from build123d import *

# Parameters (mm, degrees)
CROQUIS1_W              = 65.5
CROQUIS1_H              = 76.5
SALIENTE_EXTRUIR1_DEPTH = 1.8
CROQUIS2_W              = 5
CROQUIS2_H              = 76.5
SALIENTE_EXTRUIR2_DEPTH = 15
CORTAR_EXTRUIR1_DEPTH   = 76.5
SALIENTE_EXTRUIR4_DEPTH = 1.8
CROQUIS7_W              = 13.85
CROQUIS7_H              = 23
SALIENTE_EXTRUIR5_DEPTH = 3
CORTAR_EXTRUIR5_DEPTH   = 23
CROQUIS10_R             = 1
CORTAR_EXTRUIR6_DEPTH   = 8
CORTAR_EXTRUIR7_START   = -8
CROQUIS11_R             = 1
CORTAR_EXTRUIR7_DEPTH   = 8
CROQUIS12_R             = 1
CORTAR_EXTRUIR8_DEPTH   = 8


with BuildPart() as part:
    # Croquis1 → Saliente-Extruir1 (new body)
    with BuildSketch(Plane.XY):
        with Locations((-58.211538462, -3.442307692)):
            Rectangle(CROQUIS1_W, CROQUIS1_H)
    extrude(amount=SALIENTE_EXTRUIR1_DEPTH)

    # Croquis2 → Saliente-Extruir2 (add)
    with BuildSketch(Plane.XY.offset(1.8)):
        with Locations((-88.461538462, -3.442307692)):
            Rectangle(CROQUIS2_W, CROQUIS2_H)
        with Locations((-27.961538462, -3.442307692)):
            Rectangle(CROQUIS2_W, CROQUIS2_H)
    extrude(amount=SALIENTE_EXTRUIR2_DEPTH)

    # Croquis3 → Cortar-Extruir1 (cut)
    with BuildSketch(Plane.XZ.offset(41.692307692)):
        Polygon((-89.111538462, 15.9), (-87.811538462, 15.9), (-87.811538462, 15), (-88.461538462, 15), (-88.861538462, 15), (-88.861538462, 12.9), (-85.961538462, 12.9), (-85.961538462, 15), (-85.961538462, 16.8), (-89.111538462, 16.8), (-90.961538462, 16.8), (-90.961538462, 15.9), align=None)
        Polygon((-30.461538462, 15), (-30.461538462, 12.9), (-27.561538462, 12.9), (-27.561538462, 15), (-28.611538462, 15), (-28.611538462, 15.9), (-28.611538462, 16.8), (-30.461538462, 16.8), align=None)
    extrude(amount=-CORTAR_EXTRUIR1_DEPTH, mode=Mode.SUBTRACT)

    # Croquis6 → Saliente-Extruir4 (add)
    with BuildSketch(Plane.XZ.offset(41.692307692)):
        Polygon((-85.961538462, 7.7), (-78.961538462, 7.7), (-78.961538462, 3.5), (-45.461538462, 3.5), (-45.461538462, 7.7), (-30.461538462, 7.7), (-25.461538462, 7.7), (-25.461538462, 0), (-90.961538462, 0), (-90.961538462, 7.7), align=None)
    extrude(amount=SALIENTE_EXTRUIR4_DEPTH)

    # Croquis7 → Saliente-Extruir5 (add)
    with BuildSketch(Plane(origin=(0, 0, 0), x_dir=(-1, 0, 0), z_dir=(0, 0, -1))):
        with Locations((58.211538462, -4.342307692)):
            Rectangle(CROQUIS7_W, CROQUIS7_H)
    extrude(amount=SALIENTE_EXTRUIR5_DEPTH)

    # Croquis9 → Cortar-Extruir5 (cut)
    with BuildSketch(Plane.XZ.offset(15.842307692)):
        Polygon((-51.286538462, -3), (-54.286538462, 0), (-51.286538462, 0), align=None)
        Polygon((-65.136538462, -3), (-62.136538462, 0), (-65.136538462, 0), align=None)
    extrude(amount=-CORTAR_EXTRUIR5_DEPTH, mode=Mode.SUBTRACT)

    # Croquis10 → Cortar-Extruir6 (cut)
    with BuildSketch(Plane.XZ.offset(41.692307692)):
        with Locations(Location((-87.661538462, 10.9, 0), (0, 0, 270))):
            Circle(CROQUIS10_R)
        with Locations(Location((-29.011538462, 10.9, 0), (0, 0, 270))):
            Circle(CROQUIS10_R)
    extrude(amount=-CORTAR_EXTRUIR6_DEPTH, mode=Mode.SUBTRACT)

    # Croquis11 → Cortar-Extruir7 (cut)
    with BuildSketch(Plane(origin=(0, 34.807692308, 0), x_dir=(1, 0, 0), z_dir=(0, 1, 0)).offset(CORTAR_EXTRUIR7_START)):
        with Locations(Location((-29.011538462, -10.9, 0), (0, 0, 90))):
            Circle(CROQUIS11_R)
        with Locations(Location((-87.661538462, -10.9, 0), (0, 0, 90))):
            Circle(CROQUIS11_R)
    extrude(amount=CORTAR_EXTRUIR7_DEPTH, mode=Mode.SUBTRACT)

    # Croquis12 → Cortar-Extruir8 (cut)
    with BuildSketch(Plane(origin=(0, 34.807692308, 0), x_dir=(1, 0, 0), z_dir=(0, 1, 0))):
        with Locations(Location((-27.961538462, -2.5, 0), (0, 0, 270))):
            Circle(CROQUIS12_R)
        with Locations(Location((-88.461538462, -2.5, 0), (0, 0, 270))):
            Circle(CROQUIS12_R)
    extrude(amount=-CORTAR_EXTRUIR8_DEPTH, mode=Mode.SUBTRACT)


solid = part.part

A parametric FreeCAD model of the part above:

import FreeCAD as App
import Part
import Sketcher

doc = App.newDocument("Part")
body = doc.addObject("PartDesign::Body", "Body")

# Sketch on XY plane
sketch1 = body.newObject("Sketcher::SketchObject", "Sketch")
sketch1.AttachmentSupport = (doc.getObject("XY_Plane"), [""])
sketch1.MapMode = "FlatFace"
sketch1.addGeometry([
    Part.LineSegment(App.Vector(-91, 35, 0), App.Vector(-91, -42, 0)),
    Part.LineSegment(App.Vector(-91, -42, 0), App.Vector(-25, -42, 0)),
    Part.LineSegment(App.Vector(-25, -42, 0), App.Vector(-25, 35, 0)),
    Part.LineSegment(App.Vector(-25, 35, 0), App.Vector(-91, 35, 0)),
], False)
sketch1.addConstraint([
    Sketcher.Constraint("Coincident", 0, 2, 1, 1),
    Sketcher.Constraint("Coincident", 1, 2, 2, 1),
    Sketcher.Constraint("Coincident", 2, 2, 3, 1),
    Sketcher.Constraint("Coincident", 3, 2, 0, 1),
    Sketcher.Constraint("Vertical", 0),
    Sketcher.Constraint("Horizontal", 1),
    Sketcher.Constraint("Vertical", 2),
    Sketcher.Constraint("Horizontal", 3),
    Sketcher.Constraint("DistanceX", 1, 1, 1, 2, 65.5),
    Sketcher.Constraint("DistanceY", 0, 2, 0, 1, 76.5),
    Sketcher.Constraint("DistanceX", 0, 2, -1, 1, 90.961538),
    Sketcher.Constraint("DistanceY", 0, 2, -1, 1, 41.692308),
])
pad1 = body.newObject("PartDesign::Pad", "Pad")
pad1.Profile = sketch1
pad1.Length = 1.8

# Sketch on XY plane
sketch2 = body.newObject("Sketcher::SketchObject", "Sketch001")
sketch2.AttachmentSupport = (doc.getObject("XY_Plane"), [""])
sketch2.MapMode = "FlatFace"
sketch2.AttachmentOffset = App.Placement(App.Vector(0, 0, 1.8), App.Rotation())
sketch2.addGeometry([
    Part.LineSegment(App.Vector(-91, 35, 0), App.Vector(-91, -42, 0)),  # 0
    Part.LineSegment(App.Vector(-91, -42, 0), App.Vector(-86, -42, 0)),  # 1
    Part.LineSegment(App.Vector(-86, -42, 0), App.Vector(-86, 35, 0)),  # 2
    Part.LineSegment(App.Vector(-86, 35, 0), App.Vector(-91, 35, 0)),  # 3
    Part.LineSegment(App.Vector(-30, 35, 0), App.Vector(-30, -42, 0)),  # 4
    Part.LineSegment(App.Vector(-30, -42, 0), App.Vector(-25, -42, 0)),  # 5
    Part.LineSegment(App.Vector(-25, -42, 0), App.Vector(-25, 35, 0)),  # 6
    Part.LineSegment(App.Vector(-25, 35, 0), App.Vector(-30, 35, 0)),  # 7
], False)
sketch2.addConstraint([
    Sketcher.Constraint("Coincident", 0, 2, 1, 1),
    Sketcher.Constraint("Coincident", 1, 2, 2, 1),
    Sketcher.Constraint("Coincident", 2, 2, 3, 1),
    Sketcher.Constraint("Coincident", 3, 2, 0, 1),
    Sketcher.Constraint("Coincident", 4, 2, 5, 1),
    Sketcher.Constraint("Coincident", 5, 2, 6, 1),
    Sketcher.Constraint("Coincident", 6, 2, 7, 1),
    Sketcher.Constraint("Coincident", 7, 2, 4, 1),
    Sketcher.Constraint("Vertical", 0),
    Sketcher.Constraint("Horizontal", 1),
    Sketcher.Constraint("Vertical", 2),
    Sketcher.Constraint("Horizontal", 3),
    Sketcher.Constraint("Vertical", 4),
    Sketcher.Constraint("Horizontal", 5),
    Sketcher.Constraint("Vertical", 6),
    Sketcher.Constraint("Horizontal", 7),
    Sketcher.Constraint("Horizontal", 1, 2, 4, 2),
    Sketcher.Constraint("Horizontal", 3, 2, 6, 2),
    Sketcher.Constraint("Equal", 3, 5),
    Sketcher.Constraint("DistanceX", 1, 1, 1, 2, 5.0),
    Sketcher.Constraint("DistanceY", 0, 2, 0, 1, 76.5),
    Sketcher.Constraint("DistanceX", 1, 2, 4, 2, 55.5),
    Sketcher.Constraint("DistanceX", 0, 2, -1, 1, 90.961538),
    Sketcher.Constraint("DistanceY", 0, 2, -1, 1, 41.692308),
])
pad2 = body.newObject("PartDesign::Pad", "Pad001")
pad2.Profile = sketch2
pad2.Length = 15

# Sketch on XZ plane
sketch3 = body.newObject("Sketcher::SketchObject", "Sketch002")
sketch3.AttachmentSupport = (doc.getObject("XZ_Plane"), [""])
sketch3.MapMode = "FlatFace"
sketch3.AttachmentOffset = App.Placement(App.Vector(0, 0, 41.692308), App.Rotation())
sketch3.addGeometry([
    Part.LineSegment(App.Vector(-87.8, 15.9, 0), App.Vector(-87.8, 15, 0)),  # 0
    Part.LineSegment(App.Vector(-87.8, 15, 0), App.Vector(-88.9, 15, 0)),  # 1
    Part.LineSegment(App.Vector(-88.9, 15, 0), App.Vector(-88.9, 12.9, 0)),  # 2
    Part.LineSegment(App.Vector(-88.9, 12.9, 0), App.Vector(-86, 12.9, 0)),  # 3
    Part.LineSegment(App.Vector(-86, 12.9, 0), App.Vector(-86, 16.8, 0)),  # 4
    Part.LineSegment(App.Vector(-86, 16.8, 0), App.Vector(-91, 16.8, 0)),  # 5
    Part.LineSegment(App.Vector(-91, 16.8, 0), App.Vector(-91, 15.9, 0)),  # 6
    Part.LineSegment(App.Vector(-91, 15.9, 0), App.Vector(-87.8, 15.9, 0)),  # 7
    Part.LineSegment(App.Vector(-30.5, 12.9, 0), App.Vector(-27.6, 12.9, 0)),  # 8
    Part.LineSegment(App.Vector(-27.6, 12.9, 0), App.Vector(-27.6, 15, 0)),  # 9
    Part.LineSegment(App.Vector(-27.6, 15, 0), App.Vector(-28.6, 15, 0)),  # 10
    Part.LineSegment(App.Vector(-28.6, 15, 0), App.Vector(-28.6, 16.8, 0)),  # 11
    Part.LineSegment(App.Vector(-28.6, 16.8, 0), App.Vector(-30.5, 16.8, 0)),  # 12
    Part.LineSegment(App.Vector(-30.5, 16.8, 0), App.Vector(-30.5, 12.9, 0)),  # 13
], False)
sketch3.addConstraint([
    Sketcher.Constraint("Coincident", 0, 2, 1, 1),
    Sketcher.Constraint("Coincident", 1, 2, 2, 1),
    Sketcher.Constraint("Coincident", 2, 2, 3, 1),
    Sketcher.Constraint("Coincident", 3, 2, 4, 1),
    Sketcher.Constraint("Coincident", 4, 2, 5, 1),
    Sketcher.Constraint("Coincident", 5, 2, 6, 1),
    Sketcher.Constraint("Coincident", 6, 2, 7, 1),
    Sketcher.Constraint("Coincident", 7, 2, 0, 1),
    Sketcher.Constraint("Coincident", 8, 2, 9, 1),
    Sketcher.Constraint("Coincident", 9, 2, 10, 1),
    Sketcher.Constraint("Coincident", 10, 2, 11, 1),
    Sketcher.Constraint("Coincident", 11, 2, 12, 1),
    Sketcher.Constraint("Coincident", 12, 2, 13, 1),
    Sketcher.Constraint("Coincident", 13, 2, 8, 1),
    Sketcher.Constraint("Vertical", 0),
    Sketcher.Constraint("Horizontal", 1),
    Sketcher.Constraint("Vertical", 2),
    Sketcher.Constraint("Horizontal", 3),
    Sketcher.Constraint("Vertical", 4),
    Sketcher.Constraint("Horizontal", 5),
    Sketcher.Constraint("Vertical", 6),
    Sketcher.Constraint("Horizontal", 7),
    Sketcher.Constraint("Horizontal", 8),
    Sketcher.Constraint("Vertical", 9),
    Sketcher.Constraint("Horizontal", 10),
    Sketcher.Constraint("Vertical", 11),
    Sketcher.Constraint("Horizontal", 12),
    Sketcher.Constraint("Vertical", 13),
    Sketcher.Constraint("Horizontal", 3, 2, 8, 2),
    Sketcher.Constraint("Horizontal", 1, 2, 9, 2),
    Sketcher.Constraint("Horizontal", 5, 2, 11, 2),
    Sketcher.Constraint("Equal", 3, 8),
    Sketcher.Constraint("Equal", 1, 10),
    Sketcher.Constraint("Equal", 0, 6),
    Sketcher.Constraint("DistanceX", 5, 2, 5, 1, 5.0),
    Sketcher.Constraint("DistanceX", 3, 1, 3, 2, 2.9),
    Sketcher.Constraint("DistanceY", 0, 2, 0, 1, 0.9),
    Sketcher.Constraint("DistanceY", 2, 2, 2, 1, 2.1),
    Sketcher.Constraint("DistanceY", -1, 1, 0, 2, 15.0),
    Sketcher.Constraint("DistanceX", 1, 2, 1, 1, 1.05),
    Sketcher.Constraint("DistanceX", 3, 2, 8, 2, 58.4),
    Sketcher.Constraint("DistanceX", 0, 2, -1, 1, 87.811538),
])
pocket1 = body.newObject("PartDesign::Pocket", "Pocket")
pocket1.Profile = sketch3
pocket1.Length = 76.5

# Sketch on XZ plane
sketch4 = body.newObject("Sketcher::SketchObject", "Sketch003")
sketch4.AttachmentSupport = (doc.getObject("XZ_Plane"), [""])
sketch4.MapMode = "FlatFace"
sketch4.AttachmentOffset = App.Placement(App.Vector(0, 0, 41.692308), App.Rotation())
sketch4.addGeometry([
    Part.LineSegment(App.Vector(-79, 7.7, 0), App.Vector(-91, 7.7, 0)),  # 0
    Part.LineSegment(App.Vector(-91, 7.7, 0), App.Vector(-91, 0, 0)),  # 1
    Part.LineSegment(App.Vector(-91, 0, 0), App.Vector(-25.5, 0, 0)),  # 2
    Part.LineSegment(App.Vector(-25.5, 0, 0), App.Vector(-25.5, 7.7, 0)),  # 3
    Part.LineSegment(App.Vector(-25.5, 7.7, 0), App.Vector(-45.5, 7.7, 0)),  # 4
    Part.LineSegment(App.Vector(-45.5, 7.7, 0), App.Vector(-45.5, 3.5, 0)),  # 5
    Part.LineSegment(App.Vector(-45.5, 3.5, 0), App.Vector(-79, 3.5, 0)),  # 6
    Part.LineSegment(App.Vector(-79, 3.5, 0), App.Vector(-79, 7.7, 0)),  # 7
], False)
sketch4.addConstraint([
    Sketcher.Constraint("Coincident", 0, 2, 1, 1),
    Sketcher.Constraint("Coincident", 1, 2, 2, 1),
    Sketcher.Constraint("Coincident", 2, 2, 3, 1),
    Sketcher.Constraint("Coincident", 3, 2, 4, 1),
    Sketcher.Constraint("Coincident", 4, 2, 5, 1),
    Sketcher.Constraint("Coincident", 5, 2, 6, 1),
    Sketcher.Constraint("Coincident", 6, 2, 7, 1),
    Sketcher.Constraint("Coincident", 7, 2, 0, 1),
    Sketcher.Constraint("Horizontal", 0),
    Sketcher.Constraint("Vertical", 1),
    Sketcher.Constraint("Horizontal", 2),
    Sketcher.Constraint("Vertical", 3),
    Sketcher.Constraint("Horizontal", 4),
    Sketcher.Constraint("Vertical", 5),
    Sketcher.Constraint("Horizontal", 6),
    Sketcher.Constraint("Vertical", 7),
    Sketcher.Constraint("PointOnObject", 1, 2, -1),
    Sketcher.Constraint("Horizontal", 0, 2, 3, 2),
    Sketcher.Constraint("DistanceX", 0, 2, 0, 1, 12.0),
    Sketcher.Constraint("DistanceX", 4, 2, 4, 1, 20.0),
    Sketcher.Constraint("DistanceX", 2, 1, 2, 2, 65.5),
    Sketcher.Constraint("DistanceY", 1, 2, 1, 1, 7.7),
    Sketcher.Constraint("DistanceY", 5, 2, 5, 1, 4.2),
    Sketcher.Constraint("DistanceX", 0, 2, -1, 1, 90.961538),
])
pad3 = body.newObject("PartDesign::Pad", "Pad002")
pad3.Profile = sketch4
pad3.Length = 1.8

# Sketch on XY plane
sketch5 = body.newObject("Sketcher::SketchObject", "Sketch004")
sketch5.AttachmentSupport = (doc.getObject("XY_Plane"), [""])
sketch5.MapMode = "FlatFace"
sketch5.addGeometry([
    Part.LineSegment(App.Vector(-51, 7, 0), App.Vector(-51, -16, 0)),
    Part.LineSegment(App.Vector(-51, -16, 0), App.Vector(-65, -16, 0)),
    Part.LineSegment(App.Vector(-65, -16, 0), App.Vector(-65, 7, 0)),
    Part.LineSegment(App.Vector(-65, 7, 0), App.Vector(-51, 7, 0)),
], False)
sketch5.addConstraint([
    Sketcher.Constraint("Coincident", 0, 2, 1, 1),
    Sketcher.Constraint("Coincident", 1, 2, 2, 1),
    Sketcher.Constraint("Coincident", 2, 2, 3, 1),
    Sketcher.Constraint("Coincident", 3, 2, 0, 1),
    Sketcher.Constraint("Vertical", 0),
    Sketcher.Constraint("Horizontal", 1),
    Sketcher.Constraint("Vertical", 2),
    Sketcher.Constraint("Horizontal", 3),
    Sketcher.Constraint("DistanceY", 0, 2, 0, 1, 23.0),
    Sketcher.Constraint("DistanceX", 1, 2, 1, 1, 13.85),
    Sketcher.Constraint("DistanceX", 0, 2, -1, 1, 51.286538),
    Sketcher.Constraint("DistanceY", 0, 2, -1, 1, 15.842308),
])
pad4 = body.newObject("PartDesign::Pad", "Pad003")
pad4.Profile = sketch5
pad4.Length = 3
pad4.Reversed = True

# Sketch on XZ plane
sketch6 = body.newObject("Sketcher::SketchObject", "Sketch005")
sketch6.AttachmentSupport = (doc.getObject("XZ_Plane"), [""])
sketch6.MapMode = "FlatFace"
sketch6.AttachmentOffset = App.Placement(App.Vector(0, 0, 15.842308), App.Rotation())
sketch6.addGeometry([
    Part.LineSegment(App.Vector(-54.3, 0, 0), App.Vector(-51.3, -3, 0)),  # 0
    Part.LineSegment(App.Vector(-51.3, -3, 0), App.Vector(-51.3, 0, 0)),  # 1
    Part.LineSegment(App.Vector(-51.3, 0, 0), App.Vector(-54.3, 0, 0)),  # 2
    Part.LineSegment(App.Vector(-65.1, -3, 0), App.Vector(-62.1, 0, 0)),  # 3
    Part.LineSegment(App.Vector(-62.1, 0, 0), App.Vector(-65.1, 0, 0)),  # 4
    Part.LineSegment(App.Vector(-65.1, 0, 0), App.Vector(-65.1, -3, 0)),  # 5
], False)
sketch6.addConstraint([
    Sketcher.Constraint("Coincident", 0, 2, 1, 1),
    Sketcher.Constraint("Coincident", 1, 2, 2, 1),
    Sketcher.Constraint("Coincident", 2, 2, 0, 1),
    Sketcher.Constraint("Coincident", 3, 2, 4, 1),
    Sketcher.Constraint("Coincident", 4, 2, 5, 1),
    Sketcher.Constraint("Coincident", 5, 2, 3, 1),
    Sketcher.Constraint("Vertical", 1),
    Sketcher.Constraint("Horizontal", 2),
    Sketcher.Constraint("Horizontal", 4),
    Sketcher.Constraint("Vertical", 5),
    Sketcher.Constraint("PointOnObject", 1, 2, -1),
    Sketcher.Constraint("PointOnObject", 3, 2, -1),
    Sketcher.Constraint("Perpendicular", 0, 3),
    Sketcher.Constraint("Horizontal", 0, 2, 5, 2),
    Sketcher.Constraint("Equal", 2, 4),
    Sketcher.Constraint("DistanceX", 2, 2, 2, 1, 3.0),
    Sketcher.Constraint("DistanceX", 3, 2, 2, 2, 7.85),
    Sketcher.Constraint("DistanceX", 0, 2, -1, 1, 51.286538),
])
pocket2 = body.newObject("PartDesign::Pocket", "Pocket001")
pocket2.Profile = sketch6
pocket2.Length = 23

# Sketch on XZ plane
sketch7 = body.newObject("Sketcher::SketchObject", "Sketch006")
sketch7.AttachmentSupport = (doc.getObject("XZ_Plane"), [""])
sketch7.MapMode = "FlatFace"
sketch7.AttachmentOffset = App.Placement(App.Vector(0, 0, 41.692308), App.Rotation())
sketch7.addGeometry([
    Part.Circle(App.Vector(-87.7, 10.9, 0), App.Vector(0, 0, 1), 1),
    Part.Circle(App.Vector(-29, 10.9, 0), App.Vector(0, 0, 1), 1),
], False)
sketch7.addConstraint([
    Sketcher.Constraint("Equal", 0, 1),
    Sketcher.Constraint("Horizontal", 0, 3, 1, 3),
    Sketcher.Constraint("Diameter", 0, 2.0),
    Sketcher.Constraint("DistanceY", -1, 1, 0, 3, 10.9),
    Sketcher.Constraint("DistanceX", 0, 3, 1, 3, 58.65),
    Sketcher.Constraint("DistanceX", 0, 3, -1, 1, 87.661538),
])
pocket3 = body.newObject("PartDesign::Pocket", "Pocket002")
pocket3.Profile = sketch7
pocket3.Length = 8

# Sketch on XZ plane
sketch8 = body.newObject("Sketcher::SketchObject", "Sketch007")
sketch8.AttachmentSupport = (doc.getObject("XZ_Plane"), [""])
sketch8.MapMode = "FlatFace"
sketch8.AttachmentOffset = App.Placement(App.Vector(0, 0, -26.807692), App.Rotation())
sketch8.addGeometry([
    Part.Circle(App.Vector(-29, 10.9, 0), App.Vector(0, 0, 1), 1),
    Part.Circle(App.Vector(-87.7, 10.9, 0), App.Vector(0, 0, 1), 1),
], False)
sketch8.addConstraint([
    Sketcher.Constraint("Equal", 0, 1),
    Sketcher.Constraint("Horizontal", 0, 3, 1, 3),
    Sketcher.Constraint("Diameter", 0, 2.0),
    Sketcher.Constraint("DistanceY", -1, 1, 0, 3, 10.9),
    Sketcher.Constraint("DistanceX", 1, 3, 0, 3, 58.65),
    Sketcher.Constraint("DistanceX", 0, 3, -1, 1, 29.011538),
])
pocket4 = body.newObject("PartDesign::Pocket", "Pocket003")
pocket4.Profile = sketch8
pocket4.Length = 8

# Sketch on XZ plane
sketch9 = body.newObject("Sketcher::SketchObject", "Sketch008")
sketch9.AttachmentSupport = (doc.getObject("XZ_Plane"), [""])
sketch9.MapMode = "FlatFace"
sketch9.AttachmentOffset = App.Placement(App.Vector(0, 0, -34.807692), App.Rotation())
sketch9.addGeometry([
    Part.Circle(App.Vector(-28, 2.5, 0), App.Vector(0, 0, 1), 1),
    Part.Circle(App.Vector(-88.5, 2.5, 0), App.Vector(0, 0, 1), 1),
], False)
sketch9.addConstraint([
    Sketcher.Constraint("Equal", 0, 1),
    Sketcher.Constraint("Horizontal", 0, 3, 1, 3),
    Sketcher.Constraint("Diameter", 0, 2.0),
    Sketcher.Constraint("DistanceY", -1, 1, 0, 3, 2.5),
    Sketcher.Constraint("DistanceX", 1, 3, 0, 3, 60.5),
    Sketcher.Constraint("DistanceX", 0, 3, -1, 1, 27.961538),
])
pocket5 = body.newObject("PartDesign::Pocket", "Pocket004")
pocket5.Profile = sketch9
pocket5.Length = 8
pocket5.Reversed = True

doc.recompute()
